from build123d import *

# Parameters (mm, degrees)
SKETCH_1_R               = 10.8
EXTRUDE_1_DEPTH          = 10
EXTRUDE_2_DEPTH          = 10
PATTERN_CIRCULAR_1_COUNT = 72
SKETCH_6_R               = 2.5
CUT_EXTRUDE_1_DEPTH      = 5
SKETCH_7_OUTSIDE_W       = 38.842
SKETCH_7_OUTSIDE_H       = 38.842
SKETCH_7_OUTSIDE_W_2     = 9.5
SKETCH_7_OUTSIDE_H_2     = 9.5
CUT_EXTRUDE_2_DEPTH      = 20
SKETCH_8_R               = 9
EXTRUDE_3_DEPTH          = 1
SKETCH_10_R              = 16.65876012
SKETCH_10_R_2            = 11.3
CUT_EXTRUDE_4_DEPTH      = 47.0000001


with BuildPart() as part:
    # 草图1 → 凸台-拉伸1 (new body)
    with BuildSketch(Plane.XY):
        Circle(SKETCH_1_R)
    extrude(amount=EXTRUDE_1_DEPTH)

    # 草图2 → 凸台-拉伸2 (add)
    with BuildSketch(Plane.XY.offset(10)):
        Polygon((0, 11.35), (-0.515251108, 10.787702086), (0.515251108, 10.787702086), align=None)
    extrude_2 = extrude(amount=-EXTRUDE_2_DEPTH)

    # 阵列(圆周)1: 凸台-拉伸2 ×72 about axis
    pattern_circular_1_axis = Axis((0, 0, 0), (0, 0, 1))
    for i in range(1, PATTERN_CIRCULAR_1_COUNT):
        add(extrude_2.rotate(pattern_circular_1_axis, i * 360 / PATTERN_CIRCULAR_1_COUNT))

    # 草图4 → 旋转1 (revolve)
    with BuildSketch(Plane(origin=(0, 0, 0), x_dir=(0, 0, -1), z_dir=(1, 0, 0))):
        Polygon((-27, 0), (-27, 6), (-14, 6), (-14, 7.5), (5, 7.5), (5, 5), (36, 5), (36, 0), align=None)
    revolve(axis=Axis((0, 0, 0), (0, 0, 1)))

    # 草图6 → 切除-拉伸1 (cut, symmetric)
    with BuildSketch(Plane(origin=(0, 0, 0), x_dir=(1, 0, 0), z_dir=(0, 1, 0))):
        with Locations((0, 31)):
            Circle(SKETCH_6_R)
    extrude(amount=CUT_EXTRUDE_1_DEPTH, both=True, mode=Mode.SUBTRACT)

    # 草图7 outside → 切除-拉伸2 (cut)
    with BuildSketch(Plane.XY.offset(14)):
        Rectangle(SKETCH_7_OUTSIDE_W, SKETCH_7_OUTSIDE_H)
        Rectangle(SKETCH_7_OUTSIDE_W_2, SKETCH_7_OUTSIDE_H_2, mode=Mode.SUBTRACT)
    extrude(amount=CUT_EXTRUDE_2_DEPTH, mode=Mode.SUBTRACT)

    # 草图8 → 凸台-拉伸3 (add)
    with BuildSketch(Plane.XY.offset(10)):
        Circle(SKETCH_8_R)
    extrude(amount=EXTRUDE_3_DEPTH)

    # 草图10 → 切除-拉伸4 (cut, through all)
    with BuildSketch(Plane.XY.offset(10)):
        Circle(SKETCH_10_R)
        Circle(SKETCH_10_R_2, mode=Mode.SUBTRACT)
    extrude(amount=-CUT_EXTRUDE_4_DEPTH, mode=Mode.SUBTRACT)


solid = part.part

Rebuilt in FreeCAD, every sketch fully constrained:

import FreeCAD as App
import Part
import Sketcher

V = App.Vector
Q = App.Units.Quantity


def add_polygon(sketch, points):
    """Adds a closed chain of lines whose ends are joined by coincident constraints."""
    first, n = sketch.GeometryCount, len(points)
    for a, b in zip(points, points[1:] + points[:1]):
        sketch.addGeometry(Part.LineSegment(App.Vector(*a, 0), App.Vector(*b, 0)), False)
    for i in range(n):
        sketch.addConstraint(Sketcher.Constraint("Coincident", first + i, 2, first + (i + 1) % n, 1))

doc = App.newDocument("Part")
body = doc.addObject("PartDesign::Body", "Body")

# Sketch on XY plane
sketch1 = body.newObject("Sketcher::SketchObject", "Sketch")
sketch1.AttachmentSupport = (doc.getObject("XY_Plane"), [""])
sketch1.MapMode = "FlatFace"
sketch1.addGeometry(Part.Circle(V(0, 0, 0), V(0, 0, 1), 11), False)
sketch1.addConstraint([
    Sketcher.Constraint("Coincident", 0, 3, -1, 1),
    Sketcher.Constraint("Diameter", 0, 21.6),
])
pad1 = body.newObject("PartDesign::Pad", "Pad")
pad1.Profile = sketch1
pad1.Length = 10

# Sketch on XY plane
sketch2 = body.newObject("Sketcher::SketchObject", "Sketch001")
sketch2.AttachmentSupport = (doc.getObject("XY_Plane"), [""])
sketch2.MapMode = "FlatFace"
sketch2.AttachmentOffset = App.Placement(V(0, 0, 10), App.Rotation())
add_polygon(sketch2, [(0, 11.3), (-0.5, 10.8), (0.5, 10.8)])  # lines 0-2
sketch2.addConstraint([
    Sketcher.Constraint("Horizontal", 1),
    Sketcher.Constraint("PointOnObject", 2, 2, -2),
    Sketcher.Constraint("Equal", 0, 2),
    Sketcher.Constraint("Angle", 0, Q("-132.5 deg")),
    Sketcher.Constraint("DistanceY", -1, 1, 2, 2, 11.35),
    Sketcher.Constraint("Distance", 0, 0.762668),
])
pad2 = body.newObject("PartDesign::Pad", "Pad001")
pad2.Profile = sketch2
pad2.Length = 10
pad2.Reversed = True
doc.recompute()

polarpattern = body.newObject("PartDesign::PolarPattern", "PolarPattern")
polarpattern.Originals = [pad2]
polarpattern.Axis = (doc.getObject("Z_Axis"), [""])
polarpattern.Angle = 360
polarpattern.Occurrences = 72
body.Tip = polarpattern

# Sketch on YZ plane
sketch3 = body.newObject("Sketcher::SketchObject", "Sketch002")
sketch3.AttachmentSupport = (doc.getObject("YZ_Plane"), [""])
sketch3.MapMode = "FlatFace"
add_polygon(sketch3, [(6, 27), (0, 27), (0, -36), (5, -36), (5, -5), (7.5, -5), (7.5, 14), (6, 14)])  # lines 0-7
sketch3.addConstraint([
    Sketcher.Constraint("Horizontal", 0),
    Sketcher.Constraint("Vertical", 1),
    Sketcher.Constraint("Horizontal", 2),
    Sketcher.Constraint("Vertical", 3),
    Sketcher.Constraint("Horizontal", 4),
    Sketcher.Constraint("Vertical", 5),
    Sketcher.Constraint("Horizontal", 6),
    Sketcher.Constraint("Vertical", 7),
    Sketcher.Constraint("PointOnObject", 0, 2, -2),
    Sketcher.Constraint("DistanceX", 0, 2, 0, 1, 6.0),
    Sketcher.Constraint("DistanceX", 2, 1, 2, 2, 5.0),
    Sketcher.Constraint("DistanceY", 1, 2, 1, 1, 63.0),
    Sketcher.Constraint("DistanceY", 3, 1, 3, 2, 31.0),
    Sketcher.Constraint("DistanceY", 5, 1, 5, 2, 19.0),
    Sketcher.Constraint("DistanceX", 4, 1, 4, 2, 2.5),
    Sketcher.Constraint("DistanceY", -1, 1, 0, 2, 27.0),
])
revolution = body.newObject("PartDesign::Revolution", "Revolution")
revolution.Profile = sketch3
revolution.ReferenceAxis = (sketch3, ["V_Axis"])
revolution.Angle = 360

# Sketch on XZ plane
sketch4 = body.newObject("Sketcher::SketchObject", "Sketch003")
sketch4.AttachmentSupport = (doc.getObject("XZ_Plane"), [""])
sketch4.MapMode = "FlatFace"
sketch4.addGeometry(Part.Circle(V(0, -31, 0), V(0, 0, 1), 2.5), False)
sketch4.addConstraint([
    Sketcher.Constraint("PointOnObject", 0, 3, -2),
    Sketcher.Constraint("Diameter", 0, 5.0),
    Sketcher.Constraint("DistanceY", 0, 3, -1, 1, 31.0),
])
pocket1 = body.newObject("PartDesign::Pocket", "Pocket")
pocket1.Profile = sketch4
pocket1.Length = 10
pocket1.Midplane = True

# Sketch on XY plane
sketch5 = body.newObject("Sketcher::SketchObject", "Sketch004")
sketch5.AttachmentSupport = (doc.getObject("XY_Plane"), [""])
sketch5.MapMode = "FlatFace"
sketch5.AttachmentOffset = App.Placement(V(0, 0, 14), App.Rotation())
add_polygon(sketch5, [(-19, 19), (-19, -19), (19, -19), (19, 19)])  # lines 0-3
add_polygon(sketch5, [(5, -5), (-5, -5), (-5, 5), (5, 5)])  # lines 4-7
sketch5.addConstraint([
    Sketcher.Constraint("Vertical", 0),
    Sketcher.Constraint("Horizontal", 1),
    Sketcher.Constraint("Vertical", 2),
    Sketcher.Constraint("Horizontal", 3),
    Sketcher.Constraint("Horizontal", 4),
    Sketcher.Constraint("Vertical", 5),
    Sketcher.Constraint("Horizontal", 6),
    Sketcher.Constraint("Vertical", 7),
    Sketcher.Constraint("Symmetric", 0, 2, 2, 2, -1, 1),
    Sketcher.Constraint("Symmetric", 4, 2, 6, 2, -1, 1),
    Sketcher.Constraint("Equal", 3, 0),
    Sketcher.Constraint("Equal", 6, 5),
    Sketcher.Constraint("DistanceX", 4, 2, 4, 1, 9.5),
    Sketcher.Constraint("DistanceX", 1, 1, 1, 2, 38.842),
])
pocket2 = body.newObject("PartDesign::Pocket", "Pocket001")
pocket2.Profile = sketch5
pocket2.Length = 20
pocket2.Reversed = True

# Sketch on XY plane
sketch6 = body.newObject("Sketcher::SketchObject", "Sketch005")
sketch6.AttachmentSupport = (doc.getObject("XY_Plane"), [""])
sketch6.MapMode = "FlatFace"
sketch6.AttachmentOffset = App.Placement(V(0, 0, 10), App.Rotation())
sketch6.addGeometry(Part.Circle(V(0, 0, 0), V(0, 0, 1), 9), False)
sketch6.addConstraint([
    Sketcher.Constraint("Coincident", 0, 3, -1, 1),
    Sketcher.Constraint("Diameter", 0, 18.0),
])
pad3 = body.newObject("PartDesign::Pad", "Pad002")
pad3.Profile = sketch6
pad3.Length = 1

# Sketch on XY plane
sketch7 = body.newObject("Sketcher::SketchObject", "Sketch006")
sketch7.AttachmentSupport = (doc.getObject("XY_Plane"), [""])
sketch7.MapMode = "FlatFace"
sketch7.AttachmentOffset = App.Placement(V(0, 0, 10), App.Rotation())
sketch7.addGeometry([
    Part.Circle(V(0, 0, 0), V(0, 0, 1), 17),
    Part.Circle(V(0, 0, 0), V(0, 0, 1), 11),
], False)
sketch7.addConstraint([
    Sketcher.Constraint("Coincident", 0, 3, -1, 1),
    Sketcher.Constraint("Coincident", 1, 3, -1, 1),
    Sketcher.Constraint("Diameter", 1, 22.6),
    Sketcher.Constraint("Diameter", 0, 33.31752),
])
pocket3 = body.newObject("PartDesign::Pocket", "Pocket002")
pocket3.Profile = sketch7
pocket3.Type = "ThroughAll"

doc.recompute()
